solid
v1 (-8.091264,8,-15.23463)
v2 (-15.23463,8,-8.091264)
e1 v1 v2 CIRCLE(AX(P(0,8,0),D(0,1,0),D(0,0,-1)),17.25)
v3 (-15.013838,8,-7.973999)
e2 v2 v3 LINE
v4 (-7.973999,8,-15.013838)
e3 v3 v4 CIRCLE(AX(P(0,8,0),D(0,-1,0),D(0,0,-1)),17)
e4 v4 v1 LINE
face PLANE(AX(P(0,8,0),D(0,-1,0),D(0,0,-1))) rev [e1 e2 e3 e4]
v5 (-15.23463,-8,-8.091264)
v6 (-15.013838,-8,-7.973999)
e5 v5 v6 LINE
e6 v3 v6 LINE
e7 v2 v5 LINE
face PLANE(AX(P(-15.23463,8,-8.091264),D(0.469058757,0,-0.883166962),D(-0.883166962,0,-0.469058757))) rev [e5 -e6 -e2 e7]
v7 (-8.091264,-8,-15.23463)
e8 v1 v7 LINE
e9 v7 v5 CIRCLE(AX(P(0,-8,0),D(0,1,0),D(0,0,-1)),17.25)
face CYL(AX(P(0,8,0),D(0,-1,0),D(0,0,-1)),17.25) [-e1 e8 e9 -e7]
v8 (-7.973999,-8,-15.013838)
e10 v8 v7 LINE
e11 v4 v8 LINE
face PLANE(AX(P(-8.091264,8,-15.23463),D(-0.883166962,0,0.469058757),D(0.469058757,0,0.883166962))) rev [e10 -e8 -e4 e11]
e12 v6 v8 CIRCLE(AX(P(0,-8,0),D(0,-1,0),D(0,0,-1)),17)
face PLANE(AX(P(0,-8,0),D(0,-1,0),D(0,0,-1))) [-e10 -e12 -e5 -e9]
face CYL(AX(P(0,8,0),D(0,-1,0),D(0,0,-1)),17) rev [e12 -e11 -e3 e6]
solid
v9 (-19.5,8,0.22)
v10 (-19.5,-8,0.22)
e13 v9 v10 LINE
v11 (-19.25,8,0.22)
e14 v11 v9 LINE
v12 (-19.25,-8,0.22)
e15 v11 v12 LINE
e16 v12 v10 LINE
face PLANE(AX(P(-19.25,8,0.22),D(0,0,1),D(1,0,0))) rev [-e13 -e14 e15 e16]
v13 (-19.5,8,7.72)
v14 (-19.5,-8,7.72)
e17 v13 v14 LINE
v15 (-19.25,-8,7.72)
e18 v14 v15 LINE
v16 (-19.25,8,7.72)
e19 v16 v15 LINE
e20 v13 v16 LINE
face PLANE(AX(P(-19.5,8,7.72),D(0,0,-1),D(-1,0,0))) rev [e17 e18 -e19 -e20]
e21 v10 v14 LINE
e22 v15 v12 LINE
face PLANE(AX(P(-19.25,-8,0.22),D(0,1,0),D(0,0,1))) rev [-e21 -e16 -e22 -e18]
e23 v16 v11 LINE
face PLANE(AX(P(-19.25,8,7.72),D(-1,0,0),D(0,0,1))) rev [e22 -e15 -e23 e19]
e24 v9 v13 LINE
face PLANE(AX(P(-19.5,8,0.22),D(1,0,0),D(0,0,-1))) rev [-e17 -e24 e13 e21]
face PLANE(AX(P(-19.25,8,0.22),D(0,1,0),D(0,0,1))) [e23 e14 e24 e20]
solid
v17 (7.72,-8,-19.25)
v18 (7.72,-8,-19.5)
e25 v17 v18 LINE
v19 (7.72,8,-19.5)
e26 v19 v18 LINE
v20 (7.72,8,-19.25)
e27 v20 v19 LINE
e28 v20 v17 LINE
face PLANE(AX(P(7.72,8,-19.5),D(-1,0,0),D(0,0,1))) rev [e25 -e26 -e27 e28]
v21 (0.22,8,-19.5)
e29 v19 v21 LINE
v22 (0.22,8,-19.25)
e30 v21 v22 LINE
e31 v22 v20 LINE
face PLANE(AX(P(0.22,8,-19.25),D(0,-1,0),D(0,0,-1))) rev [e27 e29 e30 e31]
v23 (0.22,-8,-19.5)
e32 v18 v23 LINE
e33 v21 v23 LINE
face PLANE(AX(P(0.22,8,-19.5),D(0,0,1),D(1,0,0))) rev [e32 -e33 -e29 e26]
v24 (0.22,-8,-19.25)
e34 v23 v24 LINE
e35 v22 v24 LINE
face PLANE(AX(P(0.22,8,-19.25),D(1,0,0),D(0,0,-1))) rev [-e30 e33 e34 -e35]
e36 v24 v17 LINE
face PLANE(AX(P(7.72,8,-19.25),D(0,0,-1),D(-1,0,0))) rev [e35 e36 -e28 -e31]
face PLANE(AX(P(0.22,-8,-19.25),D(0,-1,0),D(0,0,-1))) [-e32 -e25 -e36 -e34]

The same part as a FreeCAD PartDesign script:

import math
import FreeCAD as App
import Part
import Sketcher
from FreeCAD import Vector

doc = App.newDocument("Part")
body = doc.addObject("PartDesign::Body", "Body")

sketch1 = body.newObject("Sketcher::SketchObject", "Sketch")
sketch1.AttachmentSupport = (doc.getObject("XZ_Plane"), [""])
sketch1.MapMode = "FlatFace"
sketch1.addGeometry([
    Part.LineSegment(Vector(-19.5, 0.22, 0), Vector(-19.5, 7.72, 0)),
    Part.LineSegment(Vector(-19.5, 7.72, 0), Vector(-19.25, 7.72, 0)),
    Part.LineSegment(Vector(-19.25, 7.72, 0), Vector(-19.25, 0.22, 0)),
    Part.LineSegment(Vector(-19.25, 0.22, 0), Vector(-19.5, 0.22, 0)),
], False)
sketch1.addConstraint([
    Sketcher.Constraint("Coincident", 0, 2, 1, 1),
    Sketcher.Constraint("Coincident", 1, 2, 2, 1),
    Sketcher.Constraint("Coincident", 2, 2, 3, 1),
    Sketcher.Constraint("Coincident", 3, 2, 0, 1),
    Sketcher.Constraint("Vertical", 0),
    Sketcher.Constraint("Horizontal", 1),
    Sketcher.Constraint("Vertical", 2),
    Sketcher.Constraint("Horizontal", 3),
    Sketcher.Constraint("DistanceY", 0, 1, 0, 2, 7.5),
    Sketcher.Constraint("DistanceX", 1, 1, 1, 2, 0.25),
    Sketcher.Constraint("DistanceX", 0, 2, -1, 1, 19.5),
    Sketcher.Constraint("DistanceY", -1, 1, 0, 2, 7.72),
])
pad1 = body.newObject("PartDesign::Pad", "Pad")
pad1.Profile = sketch1
pad1.Length = 16
pad1.Midplane = True
body2 = doc.addObject("PartDesign::Body", "Body001")

sketch2 = body2.newObject("Sketcher::SketchObject", "Sketch001")
sketch2.AttachmentSupport = (doc.getObject("XZ_Plane001"), [""])
sketch2.MapMode = "FlatFace"
sketch2.addGeometry([
    Part.LineSegment(Vector(0.22, -19.5, 0), Vector(0.22, -19.25, 0)),
    Part.LineSegment(Vector(0.22, -19.25, 0), Vector(7.72, -19.25, 0)),
    Part.LineSegment(Vector(7.72, -19.25, 0), Vector(7.72, -19.5, 0)),
    Part.LineSegment(Vector(7.72, -19.5, 0), Vector(0.22, -19.5, 0)),
], False)
sketch2.addConstraint([
    Sketcher.Constraint("Coincident", 0, 2, 1, 1),
    Sketcher.Constraint("Coincident", 1, 2, 2, 1),
    Sketcher.Constraint("Coincident", 2, 2, 3, 1),
    Sketcher.Constraint("Coincident", 3, 2, 0, 1),
    Sketcher.Constraint("Vertical", 0),
    Sketcher.Constraint("Horizontal", 1),
    Sketcher.Constraint("Vertical", 2),
    Sketcher.Constraint("Horizontal", 3),
    Sketcher.Constraint("DistanceX", 1, 1, 1, 2, 7.5),
    Sketcher.Constraint("DistanceY", 0, 1, 0, 2, 0.25),
    Sketcher.Constraint("DistanceY", 2, 2, -1, 1, 19.5),
    Sketcher.Constraint("DistanceX", -1, 1, 0, 2, 0.22),
])
pad2 = body2.newObject("PartDesign::Pad", "Pad001")
pad2.Profile = sketch2
pad2.Length = 16
pad2.Midplane = True
body3 = doc.addObject("PartDesign::Body", "Body002")

sketch3 = body3.newObject("Sketcher::SketchObject", "Sketch002")
sketch3.AttachmentSupport = (doc.getObject("XZ_Plane002"), [""])
sketch3.MapMode = "FlatFace"
sketch3.addGeometry([
    Part.LineSegment(Vector(-7.97, -15.01, 0), Vector(-8.09, -15.23, 0)),
    Part.ArcOfCircle(Part.Circle(Vector(0, 0, 0), Vector(0, 0, 1), 17.25), math.radians(-152), math.radians(-118)),
    Part.LineSegment(Vector(-15.23, -8.09, 0), Vector(-15.01, -7.97, 0)),
    Part.ArcOfCircle(Part.Circle(Vector(0, 0, 0), Vector(0, 0, 1), 17), math.radians(-152), math.radians(-118)),
], False)
sketch3.addConstraint([
    Sketcher.Constraint("Coincident", 0, 2, 1, 2),
    Sketcher.Constraint("Coincident", 1, 1, 2, 1),
    Sketcher.Constraint("Coincident", 2, 2, 3, 1),
    Sketcher.Constraint("Coincident", 3, 2, 0, 1),
    Sketcher.Constraint("Coincident", 1, 3, -1, 1),
    Sketcher.Constraint("Coincident", 3, 3, -1, 1),
    Sketcher.Constraint("Radius", 3, 17.0),
    Sketcher.Constraint("Radius", 1, 17.25),
    Sketcher.Constraint("DistanceY", 2, 2, -1, 1, 7.973999),
    Sketcher.Constraint("DistanceX", 3, 2, -1, 1, 7.973999),
    Sketcher.Constraint("DistanceY", 0, 2, -1, 1, 15.23463),
    Sketcher.Constraint("DistanceX", 1, 1, -1, 1, 15.23463),
])
pad3 = body3.newObject("PartDesign::Pad", "Pad002")
pad3.Profile = sketch3
pad3.Length = 16
pad3.Midplane = True

doc.recompute()
